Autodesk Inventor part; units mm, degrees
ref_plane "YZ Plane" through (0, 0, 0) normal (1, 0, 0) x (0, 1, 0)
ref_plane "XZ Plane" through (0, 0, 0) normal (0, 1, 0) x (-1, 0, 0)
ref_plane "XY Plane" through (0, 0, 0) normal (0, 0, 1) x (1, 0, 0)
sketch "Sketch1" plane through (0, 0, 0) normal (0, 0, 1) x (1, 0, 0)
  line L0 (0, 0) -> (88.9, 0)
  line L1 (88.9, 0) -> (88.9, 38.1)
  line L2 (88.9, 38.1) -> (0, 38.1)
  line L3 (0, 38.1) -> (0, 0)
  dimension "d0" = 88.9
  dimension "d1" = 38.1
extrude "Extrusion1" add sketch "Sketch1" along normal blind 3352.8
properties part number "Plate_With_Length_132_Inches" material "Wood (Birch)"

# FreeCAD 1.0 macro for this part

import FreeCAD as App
import Part
import Sketcher
Q = App.Units.Quantity

doc = App.newDocument("Part")
body = doc.addObject("PartDesign::Body", "Body")

# Sketch on XY plane
sketch1 = body.newObject("Sketcher::SketchObject", "Sketch")
sketch1.AttachmentSupport = (doc.getObject("XY_Plane"), [""])
sketch1.MapMode = "FlatFace"
sketch1.addGeometry([
    Part.LineSegment(App.Vector(0, 38, 0), App.Vector(0, 0, 0)),
    Part.LineSegment(App.Vector(0, 0, 0), App.Vector(89, 0, 0)),
    Part.LineSegment(App.Vector(89, 0, 0), App.Vector(89, 38, 0)),
    Part.LineSegment(App.Vector(89, 38, 0), App.Vector(0, 38, 0)),
], False)
sketch1.addConstraint([
    Sketcher.Constraint("Coincident", 0, 2, 1, 1),
    Sketcher.Constraint("Coincident", 1, 2, 2, 1),
    Sketcher.Constraint("Coincident", 2, 2, 3, 1),
    Sketcher.Constraint("Coincident", 3, 2, 0, 1),
    Sketcher.Constraint("Vertical", 0),
    Sketcher.Constraint("Horizontal", 1),
    Sketcher.Constraint("Vertical", 2),
    Sketcher.Constraint("Horizontal", 3),
    Sketcher.Constraint("Coincident", 0, 2, -1, 1),
    Sketcher.Constraint("DistanceX", 1, 1, 1, 2, Q("3.5 in")),
    Sketcher.Constraint("DistanceY", 0, 2, 0, 1, Q("1.5 in")),
])
pad1 = body.newObject("PartDesign::Pad", "Pad")
pad1.Profile = sketch1
pad1.Length = Q("132 in")

doc.recompute()
